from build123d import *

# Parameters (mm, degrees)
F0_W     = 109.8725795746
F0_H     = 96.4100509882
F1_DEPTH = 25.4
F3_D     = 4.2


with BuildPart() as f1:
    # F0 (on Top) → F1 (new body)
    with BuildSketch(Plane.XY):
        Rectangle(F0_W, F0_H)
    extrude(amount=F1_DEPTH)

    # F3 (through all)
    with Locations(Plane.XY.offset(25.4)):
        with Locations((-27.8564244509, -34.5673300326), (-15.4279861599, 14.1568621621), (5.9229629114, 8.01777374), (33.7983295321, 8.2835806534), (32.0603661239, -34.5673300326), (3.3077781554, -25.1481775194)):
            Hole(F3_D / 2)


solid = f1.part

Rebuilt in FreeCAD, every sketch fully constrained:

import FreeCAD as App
import Part
import Sketcher
Q = App.Units.Quantity

doc = App.newDocument("Part")
params = doc.addObject("Spreadsheet::Sheet", "Params")
for row, (alias, value) in enumerate([
    ("pad1_length", "25.4 mm"),
    ("sketch2_diameter", "4.2 mm"),
    ("hole_diameter", "4.2 mm"),
], start=1):
    params.set(f"A{row}", alias)
    params.set(f"B{row}", "=" + value)
    params.setAlias(f"B{row}", alias)

body = doc.addObject("PartDesign::Body", "Body")

sketch1 = body.newObject("Sketcher::SketchObject", "Sketch")
sketch1.AttachmentSupport = (doc.getObject("XY_Plane"), [""])
sketch1.MapMode = "FlatFace"
sketch1.addGeometry(Part.LineSegment(App.Vector(-55, 48, 0), App.Vector(-55, -48, 0)), False)
sketch1.addGeometry(Part.LineSegment(App.Vector(-55, -48, 0), App.Vector(55, -48, 0)), False)
sketch1.addGeometry(Part.LineSegment(App.Vector(55, -48, 0), App.Vector(55, 48, 0)), False)
sketch1.addGeometry(Part.LineSegment(App.Vector(55, 48, 0), App.Vector(-55, 48, 0)), False)
sketch1.addConstraint(Sketcher.Constraint("Coincident", 0, 2, 1, 1))
sketch1.addConstraint(Sketcher.Constraint("Coincident", 1, 2, 2, 1))
sketch1.addConstraint(Sketcher.Constraint("Coincident", 2, 2, 3, 1))
sketch1.addConstraint(Sketcher.Constraint("Coincident", 3, 2, 0, 1))
sketch1.addConstraint(Sketcher.Constraint("Vertical", 0))
sketch1.addConstraint(Sketcher.Constraint("Horizontal", 1))
sketch1.addConstraint(Sketcher.Constraint("Vertical", 2))
sketch1.addConstraint(Sketcher.Constraint("Horizontal", 3))
sketch1.addConstraint(Sketcher.Constraint("Symmetric", 0, 2, 2, 2, -1, 1))
sketch1.addConstraint(Sketcher.Constraint("DistanceX", 1, 1, 1, 2, Q("109.87258 mm")))
sketch1.addConstraint(Sketcher.Constraint("DistanceY", 0, 2, 0, 1, Q("96.410051 mm")))
pad1 = body.newObject("PartDesign::Pad", "Pad")
pad1.Profile = sketch1
pad1.setExpression("Length", "Params.pad1_length")

sketch2 = body.newObject("Sketcher::SketchObject", "Sketch001")
sketch2.AttachmentSupport = (doc.getObject("XY_Plane"), [""])
sketch2.MapMode = "FlatFace"
sketch2.AttachmentOffset = App.Placement(App.Vector(0, 0, 25.4), App.Rotation())
sketch2.addGeometry(Part.Circle(App.Vector(-27.9, -34.6, 0), App.Vector(0, 0, 1), 2.1), False)
sketch2.addGeometry(Part.Circle(App.Vector(-15.4, 14.2, 0), App.Vector(0, 0, 1), 2.1), False)
sketch2.addGeometry(Part.Circle(App.Vector(5.9, 8, 0), App.Vector(0, 0, 1), 2.1), False)
sketch2.addGeometry(Part.Circle(App.Vector(33.8, 8.3, 0), App.Vector(0, 0, 1), 2.1), False)
sketch2.addGeometry(Part.Circle(App.Vector(32.1, -34.6, 0), App.Vector(0, 0, 1), 2.1), False)
sketch2.addGeometry(Part.Circle(App.Vector(3.3, -25.1, 0), App.Vector(0, 0, 1), 2.1), False)
sketch2.addConstraint(Sketcher.Constraint("Equal", 0, 1))
sketch2.addConstraint(Sketcher.Constraint("Equal", 1, 2))
sketch2.addConstraint(Sketcher.Constraint("Equal", 2, 3))
sketch2.addConstraint(Sketcher.Constraint("Equal", 3, 4))
sketch2.addConstraint(Sketcher.Constraint("Equal", 4, 5))
sketch2.addConstraint(Sketcher.Constraint("Horizontal", 0, 3, 4, 3))
sketch2.addConstraint(Sketcher.Constraint("Diameter", 0, Q("4.2 mm")))
sketch2.addConstraint(Sketcher.Constraint("DistanceY", 0, 3, -1, 1, Q("34.56733 mm")))
sketch2.addConstraint(Sketcher.Constraint("DistanceX", -1, 1, 3, 3, Q("33.79833 mm")))
sketch2.addConstraint(Sketcher.Constraint("DistanceY", -1, 1, 3, 3, Q("8.283581 mm")))
sketch2.addConstraint(Sketcher.Constraint("DistanceX", -1, 1, 5, 3, Q("3.307778 mm")))
sketch2.addConstraint(Sketcher.Constraint("DistanceX", 0, 3, 1, 3, Q("12.428438 mm")))
sketch2.addConstraint(Sketcher.Constraint("DistanceX", 1, 3, 2, 3, Q("21.350949 mm")))
sketch2.addConstraint(Sketcher.Constraint("DistanceY", 2, 3, 1, 3, Q("6.139088 mm")))
sketch2.addConstraint(Sketcher.Constraint("DistanceY", 3, 3, 1, 3, Q("5.873282 mm")))
sketch2.addConstraint(Sketcher.Constraint("DistanceX", 0, 3, 4, 3, Q("59.916791 mm")))
sketch2.addConstraint(Sketcher.Constraint("DistanceY", 5, 3, 2, 3, Q("33.165951 mm")))
sketch2.addConstraint(Sketcher.Constraint("DistanceX", 0, 3, -1, 1, Q("27.856424 mm")))
sketch2.setExpression("Constraints[6]", "Params.sketch2_diameter")
doc.recompute()
hole = body.newObject("PartDesign::Hole", "Hole")
hole.Profile = sketch2
hole.ThreadType = "None"
hole.setExpression("Diameter", "Params.hole_diameter")
hole.DepthType = "ThroughAll"

doc.recompute()
